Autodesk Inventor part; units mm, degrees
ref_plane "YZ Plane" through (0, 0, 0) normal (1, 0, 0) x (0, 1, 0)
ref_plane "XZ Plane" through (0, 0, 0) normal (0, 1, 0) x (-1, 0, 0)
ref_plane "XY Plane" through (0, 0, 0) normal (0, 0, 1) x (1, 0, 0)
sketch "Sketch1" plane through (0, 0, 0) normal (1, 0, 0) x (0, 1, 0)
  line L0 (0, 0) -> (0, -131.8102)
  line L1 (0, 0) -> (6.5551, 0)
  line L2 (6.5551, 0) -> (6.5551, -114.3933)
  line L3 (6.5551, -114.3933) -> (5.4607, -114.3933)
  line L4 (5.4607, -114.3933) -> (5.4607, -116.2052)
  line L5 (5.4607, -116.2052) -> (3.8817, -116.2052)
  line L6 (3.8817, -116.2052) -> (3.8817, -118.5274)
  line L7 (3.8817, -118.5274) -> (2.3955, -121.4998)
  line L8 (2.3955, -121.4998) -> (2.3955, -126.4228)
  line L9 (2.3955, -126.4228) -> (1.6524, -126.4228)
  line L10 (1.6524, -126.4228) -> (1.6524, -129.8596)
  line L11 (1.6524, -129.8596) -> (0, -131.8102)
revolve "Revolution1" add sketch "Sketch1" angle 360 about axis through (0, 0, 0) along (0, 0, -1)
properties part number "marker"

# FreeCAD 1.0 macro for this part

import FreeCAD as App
import Part
import Sketcher

doc = App.newDocument("Part")
params = doc.addObject("Spreadsheet::Sheet", "Params")
for row, (alias, value) in enumerate([
    ("revolution_angle", "360 deg"),
], start=1):
    params.set(f"A{row}", alias)
    params.set(f"B{row}", "=" + value)
    params.setAlias(f"B{row}", alias)

body = doc.addObject("PartDesign::Body", "Body")

sketch1 = body.newObject("Sketcher::SketchObject", "Sketch")
sketch1.AttachmentSupport = (doc.getObject("YZ_Plane"), [""])
sketch1.MapMode = "FlatFace"
sketch1.addGeometry(Part.LineSegment(App.Vector(6.5551, 0, 0), App.Vector(0, 0, 0)), False)
sketch1.addGeometry(Part.LineSegment(App.Vector(0, 0, 0), App.Vector(0, -131.8102, 0)), False)
sketch1.addGeometry(Part.LineSegment(App.Vector(0, -131.8102, 0), App.Vector(1.6524, -129.8596, 0)), False)
sketch1.addGeometry(Part.LineSegment(App.Vector(1.6524, -129.8596, 0), App.Vector(1.6524, -126.4228, 0)), False)
sketch1.addGeometry(Part.LineSegment(App.Vector(1.6524, -126.4228, 0), App.Vector(2.3955, -126.4228, 0)), False)
sketch1.addGeometry(Part.LineSegment(App.Vector(2.3955, -126.4228, 0), App.Vector(2.3955, -121.4998, 0)), False)
sketch1.addGeometry(Part.LineSegment(App.Vector(2.3955, -121.4998, 0), App.Vector(3.8817, -118.5274, 0)), False)
sketch1.addGeometry(Part.LineSegment(App.Vector(3.8817, -118.5274, 0), App.Vector(3.8817, -116.2052, 0)), False)
sketch1.addGeometry(Part.LineSegment(App.Vector(3.8817, -116.2052, 0), App.Vector(5.4607, -116.2052, 0)), False)
sketch1.addGeometry(Part.LineSegment(App.Vector(5.4607, -116.2052, 0), App.Vector(5.4607, -114.3933, 0)), False)
sketch1.addGeometry(Part.LineSegment(App.Vector(5.4607, -114.3933, 0), App.Vector(6.5551, -114.3933, 0)), False)
sketch1.addGeometry(Part.LineSegment(App.Vector(6.5551, -114.3933, 0), App.Vector(6.5551, 0, 0)), False)
sketch1.addConstraint(Sketcher.Constraint("Coincident", 0, 2, 1, 1))
sketch1.addConstraint(Sketcher.Constraint("Coincident", 1, 2, 2, 1))
sketch1.addConstraint(Sketcher.Constraint("Coincident", 2, 2, 3, 1))
sketch1.addConstraint(Sketcher.Constraint("Coincident", 3, 2, 4, 1))
sketch1.addConstraint(Sketcher.Constraint("Coincident", 4, 2, 5, 1))
sketch1.addConstraint(Sketcher.Constraint("Coincident", 5, 2, 6, 1))
sketch1.addConstraint(Sketcher.Constraint("Coincident", 6, 2, 7, 1))
sketch1.addConstraint(Sketcher.Constraint("Coincident", 7, 2, 8, 1))
sketch1.addConstraint(Sketcher.Constraint("Coincident", 8, 2, 9, 1))
sketch1.addConstraint(Sketcher.Constraint("Coincident", 9, 2, 10, 1))
sketch1.addConstraint(Sketcher.Constraint("Coincident", 10, 2, 11, 1))
sketch1.addConstraint(Sketcher.Constraint("Coincident", 11, 2, 0, 1))
sketch1.addConstraint(Sketcher.Constraint("Horizontal", 0))
sketch1.addConstraint(Sketcher.Constraint("Vertical", 1))
sketch1.addConstraint(Sketcher.Constraint("Vertical", 3))
sketch1.addConstraint(Sketcher.Constraint("Horizontal", 4))
sketch1.addConstraint(Sketcher.Constraint("Vertical", 5))
sketch1.addConstraint(Sketcher.Constraint("Vertical", 7))
sketch1.addConstraint(Sketcher.Constraint("Horizontal", 8))
sketch1.addConstraint(Sketcher.Constraint("Vertical", 9))
sketch1.addConstraint(Sketcher.Constraint("Horizontal", 10))
sketch1.addConstraint(Sketcher.Constraint("Vertical", 11))
sketch1.addConstraint(Sketcher.Constraint("Coincident", 0, 2, -1, 1))
sketch1.addConstraint(Sketcher.Constraint("DistanceX", 0, 2, 0, 1, 6.555))
sketch1.addConstraint(Sketcher.Constraint("DistanceX", 4, 1, 4, 2, 0.743))
sketch1.addConstraint(Sketcher.Constraint("DistanceX", 8, 1, 8, 2, 1.579))
sketch1.addConstraint(Sketcher.Constraint("DistanceY", 5, 1, 5, 2, 4.923))
sketch1.addConstraint(Sketcher.Constraint("DistanceY", 9, 1, 9, 2, 1.812))
sketch1.addConstraint(Sketcher.Constraint("DistanceX", 10, 1, 10, 2, 1.0944))
sketch1.addConstraint(Sketcher.Constraint("DistanceY", 1, 2, 1, 1, 131.8102))
sketch1.addConstraint(Sketcher.Constraint("DistanceY", 3, 1, 3, 2, 3.4368))
sketch1.addConstraint(Sketcher.Constraint("DistanceY", 7, 1, 7, 2, 2.3222))
sketch1.addConstraint(Sketcher.Constraint("DistanceY", 11, 1, 11, 2, 114.3933))
sketch1.addConstraint(Sketcher.Constraint("Distance", 2, 2.5564))
sketch1.addConstraint(Sketcher.Constraint("Distance", 6, 3.3232))
revolution = body.newObject("PartDesign::Revolution", "Revolution")
revolution.Profile = sketch1
revolution.ReferenceAxis = (sketch1, ["V_Axis"])
revolution.setExpression("Angle", "Params.revolution_angle")

doc.recompute()
